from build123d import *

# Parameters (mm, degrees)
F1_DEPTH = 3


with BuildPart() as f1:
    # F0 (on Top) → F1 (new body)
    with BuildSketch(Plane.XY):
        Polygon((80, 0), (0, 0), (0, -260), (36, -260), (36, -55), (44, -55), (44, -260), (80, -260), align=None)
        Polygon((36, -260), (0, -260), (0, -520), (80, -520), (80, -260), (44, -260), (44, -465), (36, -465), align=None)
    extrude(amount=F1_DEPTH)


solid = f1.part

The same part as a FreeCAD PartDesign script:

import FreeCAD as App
import Part
import Sketcher

V = App.Vector
Q = App.Units.Quantity


def add_polygon(sketch, points):
    """Adds a closed chain of lines whose ends are joined by coincident constraints."""
    first, n = sketch.GeometryCount, len(points)
    for a, b in zip(points, points[1:] + points[:1]):
        sketch.addGeometry(Part.LineSegment(App.Vector(*a, 0), App.Vector(*b, 0)), False)
    for i in range(n):
        sketch.addConstraint(Sketcher.Constraint("Coincident", first + i, 2, first + (i + 1) % n, 1))

doc = App.newDocument("Part")
body = doc.addObject("PartDesign::Body", "Body")

# Sketch on XY plane
sketch1 = body.newObject("Sketcher::SketchObject", "Sketch")
sketch1.AttachmentSupport = (doc.getObject("XY_Plane"), [""])
sketch1.MapMode = "FlatFace"
add_polygon(sketch1, [(80, 0), (0, 0), (0, -520), (80, -520)])  # lines 0-3
add_polygon(sketch1, [(36, -55), (44, -55), (44, -465), (36, -465)])  # lines 4-7
sketch1.addConstraint([
    Sketcher.Constraint("Horizontal", 0),
    Sketcher.Constraint("Vertical", 1),
    Sketcher.Constraint("Horizontal", 2),
    Sketcher.Constraint("Vertical", 3),
    Sketcher.Constraint("Horizontal", 4),
    Sketcher.Constraint("Vertical", 5),
    Sketcher.Constraint("Horizontal", 6),
    Sketcher.Constraint("Vertical", 7),
    Sketcher.Constraint("Coincident", 0, 2, -1, 1),
    Sketcher.Constraint("DistanceX", 0, 2, 0, 1, Q("80 mm")),
    Sketcher.Constraint("DistanceX", 4, 1, 4, 2, Q("8 mm")),
    Sketcher.Constraint("DistanceY", 1, 2, 1, 1, Q("520 mm")),
    Sketcher.Constraint("DistanceY", 5, 2, 5, 1, Q("410 mm")),
    Sketcher.Constraint("DistanceX", -1, 1, 4, 2, Q("44 mm")),
    Sketcher.Constraint("DistanceY", 4, 2, -1, 1, Q("55 mm")),
])
pad1 = body.newObject("PartDesign::Pad", "Pad")
pad1.Profile = sketch1
pad1.Length = 3

doc.recompute()
